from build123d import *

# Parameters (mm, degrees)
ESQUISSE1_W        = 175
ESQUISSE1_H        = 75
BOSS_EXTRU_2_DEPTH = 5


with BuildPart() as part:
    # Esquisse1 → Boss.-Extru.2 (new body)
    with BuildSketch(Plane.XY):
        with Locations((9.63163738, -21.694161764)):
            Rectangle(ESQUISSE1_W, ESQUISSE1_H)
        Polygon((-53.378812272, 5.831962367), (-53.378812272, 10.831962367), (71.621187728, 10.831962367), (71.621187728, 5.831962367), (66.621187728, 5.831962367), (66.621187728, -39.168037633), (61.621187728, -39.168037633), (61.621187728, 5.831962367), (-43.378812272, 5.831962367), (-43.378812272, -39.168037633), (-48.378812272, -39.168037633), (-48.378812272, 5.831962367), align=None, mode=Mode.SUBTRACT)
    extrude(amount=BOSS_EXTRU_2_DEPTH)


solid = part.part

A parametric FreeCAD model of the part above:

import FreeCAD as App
import Part
import Sketcher
from FreeCAD import Vector
Q = App.Units.Quantity


def add_polygon(sketch, points):
    """Adds a closed chain of lines whose ends are joined by coincident constraints."""
    first, n = sketch.GeometryCount, len(points)
    for a, b in zip(points, points[1:] + points[:1]):
        sketch.addGeometry(Part.LineSegment(App.Vector(*a, 0), App.Vector(*b, 0)), False)
    for i in range(n):
        sketch.addConstraint(Sketcher.Constraint("Coincident", first + i, 2, first + (i + 1) % n, 1))

doc = App.newDocument("Part")
params = doc.addObject("Spreadsheet::Sheet", "Params")
for row, (alias, value) in enumerate([
    ("sketch1_width", "175 mm"),
    ("sketch1_width2", "5 mm"),
    ("sketch1_width3", "125 mm"),
    ("sketch1_height", "75 mm"),
    ("sketch1_height2", "45 mm"),
    ("pad1_length", "5 mm"),
], start=1):
    params.set(f"A{row}", alias)
    params.set(f"B{row}", "=" + value)
    params.setAlias(f"B{row}", alias)

body = doc.addObject("PartDesign::Body", "Body")

# Sketch on XY plane
sketch1 = doc.addObject("Sketcher::SketchObject", "Sketch")
body.addObject(sketch1)
sketch1.AttachmentSupport = (doc.XY_Plane, [""])
sketch1.MapMode = "FlatFace"
add_polygon(sketch1, [(-77.9, 15.8), (-77.9, -59.2), (97.1, -59.2), (97.1, 15.8)])  # lines 0-3
add_polygon(sketch1, [(-48.4, 5.8), (-53.4, 5.8), (-53.4, 10.8), (71.6, 10.8), (71.6, 5.8), (66.6, 5.8), (66.6, -39.2), (61.6, -39.2), (61.6, 5.8), (-43.4, 5.8), (-43.4, -39.2), (-48.4, -39.2)])  # lines 4-15
sketch1.addConstraint(Sketcher.Constraint("Vertical", 0))
sketch1.addConstraint(Sketcher.Constraint("Horizontal", 1))
sketch1.addConstraint(Sketcher.Constraint("Vertical", 2))
sketch1.addConstraint(Sketcher.Constraint("Horizontal", 3))
sketch1.addConstraint(Sketcher.Constraint("Horizontal", 4))
sketch1.addConstraint(Sketcher.Constraint("Vertical", 5))
sketch1.addConstraint(Sketcher.Constraint("Horizontal", 6))
sketch1.addConstraint(Sketcher.Constraint("Vertical", 7))
sketch1.addConstraint(Sketcher.Constraint("Horizontal", 8))
sketch1.addConstraint(Sketcher.Constraint("Vertical", 9))
sketch1.addConstraint(Sketcher.Constraint("Horizontal", 10))
sketch1.addConstraint(Sketcher.Constraint("Vertical", 11))
sketch1.addConstraint(Sketcher.Constraint("Horizontal", 12))
sketch1.addConstraint(Sketcher.Constraint("Vertical", 13))
sketch1.addConstraint(Sketcher.Constraint("Horizontal", 14))
sketch1.addConstraint(Sketcher.Constraint("Vertical", 15))
sketch1.addConstraint(Sketcher.Constraint("Horizontal", 4, 2, 7, 2))
sketch1.addConstraint(Sketcher.Constraint("Horizontal", 8, 2, 11, 2))
sketch1.addConstraint(Sketcher.Constraint("Horizontal", 10, 2, 13, 2))
sketch1.addConstraint(Sketcher.Constraint("Equal", 4, 8))
sketch1.addConstraint(Sketcher.Constraint("Equal", 8, 10))
sketch1.addConstraint(Sketcher.Constraint("Equal", 10, 14))
sketch1.addConstraint(Sketcher.Constraint("Equal", 14, 5))
sketch1.addConstraint(Sketcher.Constraint("DistanceX", 1, 1, 1, 2, Q("175 mm")))
sketch1.addConstraint(Sketcher.Constraint("DistanceX", 4, 2, 4, 1, Q("5 mm")))
sketch1.addConstraint(Sketcher.Constraint("DistanceX", 6, 1, 6, 2, Q("125 mm")))
sketch1.addConstraint(Sketcher.Constraint("DistanceY", 0, 2, 0, 1, Q("75 mm")))
sketch1.addConstraint(Sketcher.Constraint("DistanceY", 9, 2, 9, 1, Q("45 mm")))
sketch1.addConstraint(Sketcher.Constraint("DistanceY", 0, 2, -1, 1, Q("59.194162 mm")))
sketch1.addConstraint(Sketcher.Constraint("DistanceX", 3, 2, 4, 2, Q("24.48955 mm")))
sketch1.addConstraint(Sketcher.Constraint("DistanceX", 0, 2, -1, 1, Q("77.868363 mm")))
sketch1.addConstraint(Sketcher.Constraint("DistanceY", -1, 1, 4, 2, Q("5.831962 mm")))
sketch1.setExpression("Constraints[39]", "Params.sketch1_width")
sketch1.setExpression("Constraints[40]", "Params.sketch1_width2")
sketch1.setExpression("Constraints[41]", "Params.sketch1_width3")
sketch1.setExpression("Constraints[42]", "Params.sketch1_height")
sketch1.setExpression("Constraints[43]", "Params.sketch1_height2")
pad1 = doc.addObject("PartDesign::Pad", "Pad")
body.addObject(pad1)
pad1.Profile = sketch1
pad1.setExpression("Length", "Params.pad1_length")

doc.recompute()
